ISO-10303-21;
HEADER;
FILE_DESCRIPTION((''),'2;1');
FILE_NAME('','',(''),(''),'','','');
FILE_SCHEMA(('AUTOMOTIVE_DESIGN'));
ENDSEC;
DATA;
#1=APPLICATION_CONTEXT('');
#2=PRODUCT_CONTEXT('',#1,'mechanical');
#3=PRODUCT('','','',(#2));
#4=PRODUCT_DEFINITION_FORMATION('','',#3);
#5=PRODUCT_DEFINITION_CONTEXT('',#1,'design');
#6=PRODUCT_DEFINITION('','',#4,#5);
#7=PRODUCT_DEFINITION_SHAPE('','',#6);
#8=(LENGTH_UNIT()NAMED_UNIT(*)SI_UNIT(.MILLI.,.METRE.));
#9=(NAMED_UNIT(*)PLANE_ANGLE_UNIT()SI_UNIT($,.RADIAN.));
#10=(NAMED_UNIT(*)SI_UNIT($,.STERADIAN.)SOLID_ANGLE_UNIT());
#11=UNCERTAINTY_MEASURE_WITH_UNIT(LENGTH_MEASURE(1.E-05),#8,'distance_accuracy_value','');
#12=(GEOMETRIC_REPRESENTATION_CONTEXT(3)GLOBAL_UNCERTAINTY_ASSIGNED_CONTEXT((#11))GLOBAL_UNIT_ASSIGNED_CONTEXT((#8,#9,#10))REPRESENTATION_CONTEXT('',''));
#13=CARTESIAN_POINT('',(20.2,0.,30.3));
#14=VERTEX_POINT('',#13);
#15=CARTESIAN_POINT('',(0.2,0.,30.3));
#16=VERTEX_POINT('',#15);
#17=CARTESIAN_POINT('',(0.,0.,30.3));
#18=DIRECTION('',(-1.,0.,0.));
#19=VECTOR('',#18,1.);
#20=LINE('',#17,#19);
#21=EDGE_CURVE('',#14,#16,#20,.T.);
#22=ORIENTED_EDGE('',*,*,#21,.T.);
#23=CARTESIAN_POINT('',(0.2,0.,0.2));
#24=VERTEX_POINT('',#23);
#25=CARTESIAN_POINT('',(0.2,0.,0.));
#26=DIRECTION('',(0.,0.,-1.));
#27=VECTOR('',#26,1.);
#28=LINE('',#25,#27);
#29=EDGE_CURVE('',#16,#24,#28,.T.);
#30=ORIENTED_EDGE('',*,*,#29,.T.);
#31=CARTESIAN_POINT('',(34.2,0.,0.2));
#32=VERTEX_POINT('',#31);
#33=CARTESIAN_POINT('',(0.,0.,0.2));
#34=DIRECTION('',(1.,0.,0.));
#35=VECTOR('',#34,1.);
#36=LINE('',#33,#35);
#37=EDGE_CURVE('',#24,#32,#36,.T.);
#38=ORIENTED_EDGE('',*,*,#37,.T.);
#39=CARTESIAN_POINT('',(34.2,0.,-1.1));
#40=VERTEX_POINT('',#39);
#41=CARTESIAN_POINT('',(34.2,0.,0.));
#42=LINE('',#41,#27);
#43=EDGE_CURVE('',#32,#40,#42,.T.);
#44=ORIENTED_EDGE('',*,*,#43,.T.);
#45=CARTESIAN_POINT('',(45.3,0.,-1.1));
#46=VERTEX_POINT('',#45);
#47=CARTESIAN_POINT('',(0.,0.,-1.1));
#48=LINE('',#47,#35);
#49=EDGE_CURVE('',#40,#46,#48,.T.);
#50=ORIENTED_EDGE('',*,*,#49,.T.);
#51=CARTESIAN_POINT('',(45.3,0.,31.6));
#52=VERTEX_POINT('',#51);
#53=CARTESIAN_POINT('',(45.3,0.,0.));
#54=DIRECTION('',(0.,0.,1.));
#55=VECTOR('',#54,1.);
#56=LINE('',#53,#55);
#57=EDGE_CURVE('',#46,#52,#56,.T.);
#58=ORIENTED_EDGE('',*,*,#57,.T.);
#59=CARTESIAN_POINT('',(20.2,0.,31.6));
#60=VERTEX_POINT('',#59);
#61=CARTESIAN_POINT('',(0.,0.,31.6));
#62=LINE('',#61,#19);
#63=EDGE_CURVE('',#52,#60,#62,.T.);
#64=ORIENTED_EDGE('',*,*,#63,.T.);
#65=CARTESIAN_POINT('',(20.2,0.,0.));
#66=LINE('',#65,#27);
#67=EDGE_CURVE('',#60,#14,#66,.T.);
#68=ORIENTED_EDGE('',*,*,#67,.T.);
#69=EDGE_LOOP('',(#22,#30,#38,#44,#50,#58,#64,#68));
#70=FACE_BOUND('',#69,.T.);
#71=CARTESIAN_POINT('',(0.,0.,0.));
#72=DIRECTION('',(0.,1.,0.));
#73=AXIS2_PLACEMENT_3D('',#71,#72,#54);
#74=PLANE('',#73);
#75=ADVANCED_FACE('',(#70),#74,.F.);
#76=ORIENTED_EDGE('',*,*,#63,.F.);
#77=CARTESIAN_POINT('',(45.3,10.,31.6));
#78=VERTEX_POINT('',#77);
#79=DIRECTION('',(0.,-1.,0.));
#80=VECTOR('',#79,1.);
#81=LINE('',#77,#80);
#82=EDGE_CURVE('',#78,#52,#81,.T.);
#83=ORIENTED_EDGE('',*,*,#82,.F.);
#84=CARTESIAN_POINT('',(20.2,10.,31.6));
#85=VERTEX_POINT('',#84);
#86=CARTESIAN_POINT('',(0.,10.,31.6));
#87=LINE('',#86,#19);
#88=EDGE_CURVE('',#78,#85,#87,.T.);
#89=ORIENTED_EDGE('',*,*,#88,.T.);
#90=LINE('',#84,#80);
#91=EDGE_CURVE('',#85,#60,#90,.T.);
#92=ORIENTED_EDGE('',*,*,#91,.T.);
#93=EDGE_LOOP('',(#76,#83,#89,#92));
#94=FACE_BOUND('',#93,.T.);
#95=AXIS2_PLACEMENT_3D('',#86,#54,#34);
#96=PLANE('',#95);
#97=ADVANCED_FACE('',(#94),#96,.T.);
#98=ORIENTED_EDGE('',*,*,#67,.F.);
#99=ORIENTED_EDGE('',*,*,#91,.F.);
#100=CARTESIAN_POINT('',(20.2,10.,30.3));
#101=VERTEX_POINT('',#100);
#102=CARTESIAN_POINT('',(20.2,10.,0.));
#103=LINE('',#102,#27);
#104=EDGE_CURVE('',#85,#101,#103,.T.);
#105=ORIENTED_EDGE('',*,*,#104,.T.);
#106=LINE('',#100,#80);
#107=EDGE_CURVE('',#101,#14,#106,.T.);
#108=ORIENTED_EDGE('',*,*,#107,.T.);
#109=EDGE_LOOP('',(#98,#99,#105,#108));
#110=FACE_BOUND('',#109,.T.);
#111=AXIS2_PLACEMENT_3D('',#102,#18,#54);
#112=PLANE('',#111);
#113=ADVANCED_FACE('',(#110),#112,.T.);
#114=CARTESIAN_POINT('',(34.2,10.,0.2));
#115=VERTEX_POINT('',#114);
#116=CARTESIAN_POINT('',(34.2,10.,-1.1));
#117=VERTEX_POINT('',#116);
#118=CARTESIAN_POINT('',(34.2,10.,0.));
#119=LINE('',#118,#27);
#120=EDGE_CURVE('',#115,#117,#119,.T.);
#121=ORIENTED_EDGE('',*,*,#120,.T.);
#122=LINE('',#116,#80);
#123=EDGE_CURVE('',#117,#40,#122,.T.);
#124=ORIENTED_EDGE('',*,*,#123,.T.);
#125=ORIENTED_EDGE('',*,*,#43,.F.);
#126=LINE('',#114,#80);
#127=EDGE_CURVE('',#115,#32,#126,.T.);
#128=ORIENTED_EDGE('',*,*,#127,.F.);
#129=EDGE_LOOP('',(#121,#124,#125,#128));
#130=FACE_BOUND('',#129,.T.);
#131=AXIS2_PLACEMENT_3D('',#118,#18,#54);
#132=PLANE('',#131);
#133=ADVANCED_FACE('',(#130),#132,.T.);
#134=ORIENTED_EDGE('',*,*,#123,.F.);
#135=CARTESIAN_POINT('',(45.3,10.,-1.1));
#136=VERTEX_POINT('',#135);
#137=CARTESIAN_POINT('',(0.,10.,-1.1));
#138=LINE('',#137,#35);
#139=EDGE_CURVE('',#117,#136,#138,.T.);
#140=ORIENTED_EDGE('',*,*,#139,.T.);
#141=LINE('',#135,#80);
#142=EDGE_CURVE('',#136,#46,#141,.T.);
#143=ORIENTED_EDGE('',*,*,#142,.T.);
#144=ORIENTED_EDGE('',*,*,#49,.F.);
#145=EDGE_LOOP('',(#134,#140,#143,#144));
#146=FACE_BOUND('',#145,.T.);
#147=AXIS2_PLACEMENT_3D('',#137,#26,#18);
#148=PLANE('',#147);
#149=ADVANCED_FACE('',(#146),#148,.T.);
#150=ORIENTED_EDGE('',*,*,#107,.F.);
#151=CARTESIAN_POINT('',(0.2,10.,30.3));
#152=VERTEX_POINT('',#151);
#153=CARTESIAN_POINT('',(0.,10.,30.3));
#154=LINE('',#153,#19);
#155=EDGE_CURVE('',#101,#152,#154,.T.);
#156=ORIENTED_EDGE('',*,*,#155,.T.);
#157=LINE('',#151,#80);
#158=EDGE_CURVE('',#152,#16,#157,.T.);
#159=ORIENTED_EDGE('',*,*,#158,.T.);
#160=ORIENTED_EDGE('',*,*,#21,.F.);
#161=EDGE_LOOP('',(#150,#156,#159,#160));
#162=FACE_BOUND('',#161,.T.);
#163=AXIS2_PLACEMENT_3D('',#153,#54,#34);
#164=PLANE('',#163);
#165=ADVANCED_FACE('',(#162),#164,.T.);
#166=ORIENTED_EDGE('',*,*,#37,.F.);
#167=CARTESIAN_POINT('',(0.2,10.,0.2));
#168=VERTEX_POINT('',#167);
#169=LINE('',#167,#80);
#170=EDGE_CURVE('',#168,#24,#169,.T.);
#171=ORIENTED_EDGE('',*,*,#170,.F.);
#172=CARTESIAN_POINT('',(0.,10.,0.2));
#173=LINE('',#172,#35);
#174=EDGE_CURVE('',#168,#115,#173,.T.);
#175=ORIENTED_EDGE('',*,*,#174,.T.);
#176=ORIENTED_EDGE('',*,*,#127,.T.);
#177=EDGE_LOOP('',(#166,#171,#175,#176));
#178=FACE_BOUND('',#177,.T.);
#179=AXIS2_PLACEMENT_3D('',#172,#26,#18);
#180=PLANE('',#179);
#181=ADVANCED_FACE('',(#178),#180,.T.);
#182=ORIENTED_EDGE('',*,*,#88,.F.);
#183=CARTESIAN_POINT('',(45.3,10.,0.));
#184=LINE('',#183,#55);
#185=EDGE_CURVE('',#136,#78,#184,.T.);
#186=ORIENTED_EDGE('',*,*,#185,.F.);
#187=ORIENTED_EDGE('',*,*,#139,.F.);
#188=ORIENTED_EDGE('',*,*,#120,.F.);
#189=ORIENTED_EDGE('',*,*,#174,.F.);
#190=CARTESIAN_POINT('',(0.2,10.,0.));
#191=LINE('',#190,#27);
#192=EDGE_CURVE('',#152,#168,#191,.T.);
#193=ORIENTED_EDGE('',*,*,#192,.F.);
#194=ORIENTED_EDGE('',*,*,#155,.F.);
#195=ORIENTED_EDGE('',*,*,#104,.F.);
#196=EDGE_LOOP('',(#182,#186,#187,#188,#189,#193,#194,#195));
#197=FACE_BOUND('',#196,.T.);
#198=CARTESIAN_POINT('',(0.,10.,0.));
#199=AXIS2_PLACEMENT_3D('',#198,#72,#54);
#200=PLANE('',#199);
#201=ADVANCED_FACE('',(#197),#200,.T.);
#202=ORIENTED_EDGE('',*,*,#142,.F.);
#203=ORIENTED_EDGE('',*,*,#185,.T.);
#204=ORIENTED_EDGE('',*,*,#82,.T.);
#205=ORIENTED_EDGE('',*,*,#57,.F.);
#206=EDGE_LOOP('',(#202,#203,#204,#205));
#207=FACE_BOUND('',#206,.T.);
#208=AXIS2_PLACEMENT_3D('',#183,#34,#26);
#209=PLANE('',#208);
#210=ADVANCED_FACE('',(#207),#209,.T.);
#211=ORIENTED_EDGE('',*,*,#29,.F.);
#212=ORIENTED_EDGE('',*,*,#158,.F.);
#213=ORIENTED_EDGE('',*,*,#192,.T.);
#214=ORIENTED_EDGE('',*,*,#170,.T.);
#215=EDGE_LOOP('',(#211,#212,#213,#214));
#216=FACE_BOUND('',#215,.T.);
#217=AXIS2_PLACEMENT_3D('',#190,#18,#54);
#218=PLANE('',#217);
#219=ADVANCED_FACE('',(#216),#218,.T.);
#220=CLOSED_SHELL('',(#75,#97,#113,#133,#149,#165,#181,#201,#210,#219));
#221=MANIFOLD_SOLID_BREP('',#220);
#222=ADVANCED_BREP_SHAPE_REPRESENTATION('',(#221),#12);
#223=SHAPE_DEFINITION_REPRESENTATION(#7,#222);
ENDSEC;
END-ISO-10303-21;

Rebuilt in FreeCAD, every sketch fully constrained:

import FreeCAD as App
import Part
import Sketcher

V = App.Vector

doc = App.newDocument("Part")
params = doc.addObject("Spreadsheet::Sheet", "Params")
for row, (alias, value) in enumerate([
    ("sketch1_width", "34 mm"),
    ("sketch1_width2", "20 mm"),
    ("sketch1_width3", "25.1 mm"),
    ("sketch1_height", "30.1 mm"),
    ("sketch1_height2", "1.3 mm"),
    ("pad1_length", "10 mm"),
], start=1):
    params.set(f"A{row}", alias)
    params.set(f"B{row}", "=" + value)
    params.setAlias(f"B{row}", alias)

body = doc.addObject("PartDesign::Body", "Body")

sketch1 = body.newObject("Sketcher::SketchObject", "Sketch")
sketch1.AttachmentSupport = (doc.getObject("XZ_Plane"), [""])
sketch1.MapMode = "FlatFace"
sketch1.addGeometry(Part.LineSegment(V(34.2, 0.2, 0), V(0.2, 0.2, 0)), False)
sketch1.addGeometry(Part.LineSegment(V(0.2, 0.2, 0), V(0.2, 30.3, 0)), False)
sketch1.addGeometry(Part.LineSegment(V(0.2, 30.3, 0), V(20.2, 30.3, 0)), False)
sketch1.addGeometry(Part.LineSegment(V(20.2, 30.3, 0), V(20.2, 31.6, 0)), False)
sketch1.addGeometry(Part.LineSegment(V(20.2, 31.6, 0), V(45.3, 31.6, 0)), False)
sketch1.addGeometry(Part.LineSegment(V(45.3, 31.6, 0), V(45.3, -1.1, 0)), False)
sketch1.addGeometry(Part.LineSegment(V(45.3, -1.1, 0), V(34.2, -1.1, 0)), False)
sketch1.addGeometry(Part.LineSegment(V(34.2, -1.1, 0), V(34.2, 0.2, 0)), False)
sketch1.addConstraint(Sketcher.Constraint("Coincident", 0, 2, 1, 1))
sketch1.addConstraint(Sketcher.Constraint("Coincident", 1, 2, 2, 1))
sketch1.addConstraint(Sketcher.Constraint("Coincident", 2, 2, 3, 1))
sketch1.addConstraint(Sketcher.Constraint("Coincident", 3, 2, 4, 1))
sketch1.addConstraint(Sketcher.Constraint("Coincident", 4, 2, 5, 1))
sketch1.addConstraint(Sketcher.Constraint("Coincident", 5, 2, 6, 1))
sketch1.addConstraint(Sketcher.Constraint("Coincident", 6, 2, 7, 1))
sketch1.addConstraint(Sketcher.Constraint("Coincident", 7, 2, 0, 1))
sketch1.addConstraint(Sketcher.Constraint("Horizontal", 0))
sketch1.addConstraint(Sketcher.Constraint("Vertical", 1))
sketch1.addConstraint(Sketcher.Constraint("Horizontal", 2))
sketch1.addConstraint(Sketcher.Constraint("Vertical", 3))
sketch1.addConstraint(Sketcher.Constraint("Horizontal", 4))
sketch1.addConstraint(Sketcher.Constraint("Vertical", 5))
sketch1.addConstraint(Sketcher.Constraint("Horizontal", 6))
sketch1.addConstraint(Sketcher.Constraint("Vertical", 7))
sketch1.addConstraint(Sketcher.Constraint("Equal", 3, 7))
sketch1.addConstraint(Sketcher.Constraint("DistanceX", 0, 2, 0, 1, 34.0))
sketch1.addConstraint(Sketcher.Constraint("DistanceX", 2, 1, 2, 2, 20.0))
sketch1.addConstraint(Sketcher.Constraint("DistanceX", 4, 1, 4, 2, 25.1))
sketch1.addConstraint(Sketcher.Constraint("DistanceY", 1, 1, 1, 2, 30.1))
sketch1.addConstraint(Sketcher.Constraint("DistanceY", 3, 1, 3, 2, 1.3))
sketch1.addConstraint(Sketcher.Constraint("DistanceX", -1, 1, 0, 2, 0.2))
sketch1.addConstraint(Sketcher.Constraint("DistanceY", -1, 1, 0, 2, 0.2))
sketch1.setExpression("Constraints[17]", "Params.sketch1_width")
sketch1.setExpression("Constraints[18]", "Params.sketch1_width2")
sketch1.setExpression("Constraints[19]", "Params.sketch1_width3")
sketch1.setExpression("Constraints[20]", "Params.sketch1_height")
sketch1.setExpression("Constraints[21]", "Params.sketch1_height2")
pad1 = body.newObject("PartDesign::Pad", "Pad")
pad1.Profile = sketch1
pad1.setExpression("Length", "Params.pad1_length")
pad1.Reversed = True

doc.recompute()
